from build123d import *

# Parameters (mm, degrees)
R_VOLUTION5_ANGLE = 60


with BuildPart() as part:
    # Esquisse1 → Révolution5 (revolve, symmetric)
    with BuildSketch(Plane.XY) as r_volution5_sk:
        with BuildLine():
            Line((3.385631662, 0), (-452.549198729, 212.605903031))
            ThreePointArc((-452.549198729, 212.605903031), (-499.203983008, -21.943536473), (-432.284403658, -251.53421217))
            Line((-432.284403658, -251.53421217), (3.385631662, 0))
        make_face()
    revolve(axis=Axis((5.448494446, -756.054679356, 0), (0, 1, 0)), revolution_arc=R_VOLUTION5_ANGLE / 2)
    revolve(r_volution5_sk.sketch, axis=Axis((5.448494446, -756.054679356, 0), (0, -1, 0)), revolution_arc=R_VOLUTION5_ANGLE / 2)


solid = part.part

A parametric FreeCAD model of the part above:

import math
import FreeCAD as App
import Part
import Sketcher
from FreeCAD import Vector
Q = App.Units.Quantity

doc = App.newDocument("Part")
params = doc.addObject("Spreadsheet::Sheet", "Params")
for row, (alias, value) in enumerate([
    ("revolution_angle", "30 deg"),
    ("revolution2_angle", "30 deg"),
], start=1):
    params.set(f"A{row}", alias)
    params.set(f"B{row}", "=" + value)
    params.setAlias(f"B{row}", alias)

body = doc.addObject("PartDesign::Body", "Body")

# Sketch on XY plane
sketch1 = body.newObject("Sketcher::SketchObject", "Sketch")
sketch1.AttachmentSupport = (doc.getObject("XY_Plane"), [""])
sketch1.MapMode = "FlatFace"
sketch1.addGeometry([
    Part.LineSegment(Vector(3, 0, 0), Vector(-453, 213, 0)),
    Part.ArcOfCircle(Part.Circle(Vector(3, 0, 0), Vector(0, 0, 1), 503), math.radians(155), math.radians(210)),
    Part.LineSegment(Vector(-432, -252, 0), Vector(3, 0, 0)),
], False)
sketch1.addGeometry(Part.LineSegment(Vector(5, -252, 0), Vector(5, 213, 0)), True)  # axis
sketch1.addConstraint([
    Sketcher.Constraint("Coincident", 0, 2, 1, 1),
    Sketcher.Constraint("Coincident", 1, 2, 2, 1),
    Sketcher.Constraint("Coincident", 2, 2, 0, 1),
    Sketcher.Constraint("Vertical", 3),
    Sketcher.Constraint("Coincident", 2, 2, 1, 3),
    Sketcher.Constraint("PointOnObject", 1, 3, -1),
    Sketcher.Constraint("Horizontal", 1, 2, 3, 1),
    Sketcher.Constraint("Horizontal", 0, 2, 3, 2),
    Sketcher.Constraint("Angle", 0, Q("155 deg")),
    Sketcher.Constraint("Angle", 2, Q("30 deg")),
    Sketcher.Constraint("Radius", 1, 503.068424),
    Sketcher.Constraint("DistanceX", 0, 2, -1, 1, 452.549199),
    Sketcher.Constraint("DistanceX", 1, 2, 3, 1, 437.732898),
])
revolution = body.newObject("PartDesign::Revolution", "Revolution")
revolution.Profile = sketch1
revolution.ReferenceAxis = (sketch1, ["Axis0"])
revolution.setExpression("Angle", "Params.revolution_angle")

# Sketch on XY plane
sketch2 = body.newObject("Sketcher::SketchObject", "Sketch001")
sketch2.AttachmentSupport = (doc.getObject("XY_Plane"), [""])
sketch2.MapMode = "FlatFace"
sketch2.addGeometry([
    Part.LineSegment(Vector(3, 0, 0), Vector(-453, 213, 0)),
    Part.ArcOfCircle(Part.Circle(Vector(3, 0, 0), Vector(0, 0, 1), 503), math.radians(155), math.radians(210)),
    Part.LineSegment(Vector(-432, -252, 0), Vector(3, 0, 0)),
], False)
sketch2.addGeometry(Part.LineSegment(Vector(5, 213, 0), Vector(5, -252, 0)), True)  # axis
sketch2.addConstraint([
    Sketcher.Constraint("Coincident", 0, 2, 1, 1),
    Sketcher.Constraint("Coincident", 1, 2, 2, 1),
    Sketcher.Constraint("Coincident", 2, 2, 0, 1),
    Sketcher.Constraint("Vertical", 3),
    Sketcher.Constraint("Coincident", 2, 2, 1, 3),
    Sketcher.Constraint("PointOnObject", 1, 3, -1),
    Sketcher.Constraint("Horizontal", 0, 2, 3, 1),
    Sketcher.Constraint("Horizontal", 1, 2, 3, 2),
    Sketcher.Constraint("Angle", 0, Q("155 deg")),
    Sketcher.Constraint("Angle", 2, Q("30 deg")),
    Sketcher.Constraint("Radius", 1, 503.068424),
    Sketcher.Constraint("DistanceX", 0, 2, -1, 1, 452.549199),
    Sketcher.Constraint("DistanceX", 1, 2, 3, 1, 437.732898),
])
revolution2 = body.newObject("PartDesign::Revolution", "Revolution001")
revolution2.Profile = sketch2
revolution2.ReferenceAxis = (sketch2, ["Axis0"])
revolution2.setExpression("Angle", "Params.revolution2_angle")

doc.recompute()
